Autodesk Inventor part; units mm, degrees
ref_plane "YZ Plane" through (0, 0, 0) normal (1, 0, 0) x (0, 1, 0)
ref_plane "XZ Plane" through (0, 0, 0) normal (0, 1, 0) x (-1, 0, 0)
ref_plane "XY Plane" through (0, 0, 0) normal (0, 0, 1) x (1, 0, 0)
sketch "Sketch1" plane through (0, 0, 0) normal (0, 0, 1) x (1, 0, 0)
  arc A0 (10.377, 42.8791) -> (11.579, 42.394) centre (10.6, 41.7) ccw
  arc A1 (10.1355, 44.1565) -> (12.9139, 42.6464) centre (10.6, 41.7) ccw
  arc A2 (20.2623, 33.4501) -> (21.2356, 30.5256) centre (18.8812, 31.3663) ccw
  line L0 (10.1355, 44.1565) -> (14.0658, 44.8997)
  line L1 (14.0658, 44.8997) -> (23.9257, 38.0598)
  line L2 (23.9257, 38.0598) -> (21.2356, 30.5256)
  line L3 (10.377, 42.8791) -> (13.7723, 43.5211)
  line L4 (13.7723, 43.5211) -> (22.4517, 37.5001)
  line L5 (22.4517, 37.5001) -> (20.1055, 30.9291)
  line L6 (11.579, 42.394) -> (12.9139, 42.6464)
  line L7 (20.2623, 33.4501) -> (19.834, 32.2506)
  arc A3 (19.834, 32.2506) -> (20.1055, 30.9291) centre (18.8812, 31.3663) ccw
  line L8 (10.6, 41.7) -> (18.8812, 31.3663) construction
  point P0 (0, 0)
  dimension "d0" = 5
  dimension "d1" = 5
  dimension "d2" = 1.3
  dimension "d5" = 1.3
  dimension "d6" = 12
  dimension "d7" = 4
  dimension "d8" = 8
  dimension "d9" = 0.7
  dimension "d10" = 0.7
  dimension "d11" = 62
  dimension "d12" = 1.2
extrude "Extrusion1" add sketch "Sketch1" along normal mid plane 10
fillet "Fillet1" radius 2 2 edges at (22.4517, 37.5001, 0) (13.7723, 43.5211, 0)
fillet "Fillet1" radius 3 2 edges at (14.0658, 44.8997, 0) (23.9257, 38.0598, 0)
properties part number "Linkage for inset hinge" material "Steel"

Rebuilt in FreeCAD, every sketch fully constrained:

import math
import FreeCAD as App
import Part
import Sketcher

V = App.Vector
Q = App.Units.Quantity


def edges_at(feature, points):
    """Names of the edges that pass closest to the given points."""
    edges = feature.Shape.Edges
    near = lambda p: min(range(len(edges)), key=lambda i: edges[i].distToShape(Part.Vertex(*p))[0])
    return sorted({f"Edge{near(p) + 1}" for p in points})

doc = App.newDocument("Part")
params = doc.addObject("Spreadsheet::Sheet", "Params")
for row, (alias, value) in enumerate([
    ("sketch1_radius", "1.2 mm"),
    ("sketch1_radius2", "1.3 mm"),
    ("sketch1_radius3", "2.5 mm"),
    ("sketch1_length", "8 mm"),
    ("sketch1_length2", "12 mm"),
    ("pad1_length", "10 mm"),
    ("fillet_radius", "2 mm"),
    ("fillet2_radius", "3 mm"),
], start=1):
    params.set(f"A{row}", alias)
    params.set(f"B{row}", "=" + value)
    params.setAlias(f"B{row}", alias)

body = doc.addObject("PartDesign::Body", "Body")

sketch1 = body.newObject("Sketcher::SketchObject", "Sketch")
sketch1.AttachmentSupport = (doc.getObject("XY_Plane"), [""])
sketch1.MapMode = "FlatFace"
sketch1.addGeometry(Part.ArcOfCircle(Part.Circle(V(10.6, 41.7, 0), V(0, 0, 1), 1.2), math.radians(101), math.radians(395)), False)
sketch1.addGeometry(Part.LineSegment(V(10.4, 42.9, 0), V(13.8, 43.5, 0)), False)
sketch1.addGeometry(Part.LineSegment(V(13.8, 43.5, 0), V(22.5, 37.5, 0)), False)
sketch1.addGeometry(Part.LineSegment(V(22.5, 37.5, 0), V(20.1, 30.9, 0)), False)
sketch1.addGeometry(Part.ArcOfCircle(Part.Circle(V(18.9, 31.4, 0), V(0, 0, 1), 1.3), math.radians(43), math.radians(340)), False)
sketch1.addGeometry(Part.LineSegment(V(19.8, 32.3, 0), V(20.3, 33.5, 0)), False)
sketch1.addGeometry(Part.ArcOfCircle(Part.Circle(V(18.9, 31.4, 0), V(0, 0, 1), 2.5), math.radians(56), math.radians(340)), False)
sketch1.addGeometry(Part.LineSegment(V(21.2, 30.5, 0), V(23.9, 38.1, 0)), False)
sketch1.addGeometry(Part.LineSegment(V(23.9, 38.1, 0), V(14.1, 44.9, 0)), False)
sketch1.addGeometry(Part.LineSegment(V(14.1, 44.9, 0), V(10.1, 44.2, 0)), False)
sketch1.addGeometry(Part.ArcOfCircle(Part.Circle(V(10.6, 41.7, 0), V(0, 0, 1), 2.5), math.radians(101), math.radians(382)), False)
sketch1.addGeometry(Part.LineSegment(V(12.9, 42.6, 0), V(11.6, 42.4, 0)), False)
sketch1.addConstraint(Sketcher.Constraint("Tangent", 0, 1, 1, 1))
sketch1.addConstraint(Sketcher.Constraint("Coincident", 1, 2, 2, 1))
sketch1.addConstraint(Sketcher.Constraint("Coincident", 2, 2, 3, 1))
sketch1.addConstraint(Sketcher.Constraint("Tangent", 3, 2, 4, 2))
sketch1.addConstraint(Sketcher.Constraint("Coincident", 4, 1, 5, 1))
sketch1.addConstraint(Sketcher.Constraint("Coincident", 5, 2, 6, 1))
sketch1.addConstraint(Sketcher.Constraint("Tangent", 6, 2, 7, 1))
sketch1.addConstraint(Sketcher.Constraint("Coincident", 7, 2, 8, 1))
sketch1.addConstraint(Sketcher.Constraint("Coincident", 8, 2, 9, 1))
sketch1.addConstraint(Sketcher.Constraint("Tangent", 9, 2, 10, 1))
sketch1.addConstraint(Sketcher.Constraint("Coincident", 10, 2, 11, 1))
sketch1.addConstraint(Sketcher.Constraint("Coincident", 11, 2, 0, 2))
sketch1.addConstraint(Sketcher.Constraint("Coincident", 6, 3, 4, 3))
sketch1.addConstraint(Sketcher.Constraint("Coincident", 10, 3, 0, 3))
sketch1.addConstraint(Sketcher.Constraint("Equal", 6, 10))
sketch1.addConstraint(Sketcher.Constraint("Parallel", 3, 5))
sketch1.addConstraint(Sketcher.Constraint("Parallel", 5, 7))
sketch1.addConstraint(Sketcher.Constraint("Parallel", 2, 8))
sketch1.addConstraint(Sketcher.Constraint("Parallel", 1, 9))
sketch1.addConstraint(Sketcher.Constraint("Parallel", 9, 11))
sketch1.addConstraint(Sketcher.Constraint("Radius", 0, Q("1.2 mm")))
sketch1.addConstraint(Sketcher.Constraint("Radius", 4, Q("1.3 mm")))
sketch1.addConstraint(Sketcher.Constraint("Radius", 6, Q("2.5 mm")))
sketch1.addConstraint(Sketcher.Constraint("Distance", 7, Q("8 mm")))
sketch1.addConstraint(Sketcher.Constraint("Distance", 8, Q("12 mm")))
sketch1.addConstraint(Sketcher.Constraint("Distance", 9, Q("4 mm")))
sketch1.addConstraint(Sketcher.Constraint("DistanceX", -1, 1, 0, 3, Q("10.6 mm")))
sketch1.addConstraint(Sketcher.Constraint("DistanceY", -1, 1, 0, 3, Q("41.7 mm")))
sketch1.addConstraint(Sketcher.Constraint("DistanceY", -1, 1, 2, 2, Q("37.5 mm")))
sketch1.addConstraint(Sketcher.Constraint("Angle", 2, Q("-34.7495 deg")))
sketch1.addConstraint(Sketcher.Constraint("Angle", 3, Q("-109.6493 deg")))
sketch1.addConstraint(Sketcher.Constraint("DistanceY", 4, 1, 5, 2, Q("1.1995 mm")))
sketch1.addConstraint(Sketcher.Constraint("DistanceY", -1, 1, 5, 2, Q("33.45 mm")))
sketch1.addConstraint(Sketcher.Constraint("DistanceX", -1, 1, 10, 2, Q("12.914 mm")))
sketch1.setExpression("Constraints[20]", "Params.sketch1_radius")
sketch1.setExpression("Constraints[21]", "Params.sketch1_radius2")
sketch1.setExpression("Constraints[22]", "Params.sketch1_radius3")
sketch1.setExpression("Constraints[23]", "Params.sketch1_length")
sketch1.setExpression("Constraints[24]", "Params.sketch1_length2")
pad1 = body.newObject("PartDesign::Pad", "Pad")
pad1.Profile = sketch1
pad1.setExpression("Length", "Params.pad1_length")
pad1.Midplane = True
doc.recompute()

fillet = body.newObject("PartDesign::Fillet", "Fillet")
fillet.Base = (pad1, edges_at(pad1, [(22.452, 37.5, 0), (13.772, 43.521, 0)]))
fillet.setExpression("Radius", "Params.fillet_radius")
doc.recompute()

fillet2 = body.newObject("PartDesign::Fillet", "Fillet001")
fillet2.Base = (fillet, edges_at(fillet, [(14.066, 44.9, 0), (23.926, 38.06, 0)]))
fillet2.setExpression("Radius", "Params.fillet2_radius")

doc.recompute()
